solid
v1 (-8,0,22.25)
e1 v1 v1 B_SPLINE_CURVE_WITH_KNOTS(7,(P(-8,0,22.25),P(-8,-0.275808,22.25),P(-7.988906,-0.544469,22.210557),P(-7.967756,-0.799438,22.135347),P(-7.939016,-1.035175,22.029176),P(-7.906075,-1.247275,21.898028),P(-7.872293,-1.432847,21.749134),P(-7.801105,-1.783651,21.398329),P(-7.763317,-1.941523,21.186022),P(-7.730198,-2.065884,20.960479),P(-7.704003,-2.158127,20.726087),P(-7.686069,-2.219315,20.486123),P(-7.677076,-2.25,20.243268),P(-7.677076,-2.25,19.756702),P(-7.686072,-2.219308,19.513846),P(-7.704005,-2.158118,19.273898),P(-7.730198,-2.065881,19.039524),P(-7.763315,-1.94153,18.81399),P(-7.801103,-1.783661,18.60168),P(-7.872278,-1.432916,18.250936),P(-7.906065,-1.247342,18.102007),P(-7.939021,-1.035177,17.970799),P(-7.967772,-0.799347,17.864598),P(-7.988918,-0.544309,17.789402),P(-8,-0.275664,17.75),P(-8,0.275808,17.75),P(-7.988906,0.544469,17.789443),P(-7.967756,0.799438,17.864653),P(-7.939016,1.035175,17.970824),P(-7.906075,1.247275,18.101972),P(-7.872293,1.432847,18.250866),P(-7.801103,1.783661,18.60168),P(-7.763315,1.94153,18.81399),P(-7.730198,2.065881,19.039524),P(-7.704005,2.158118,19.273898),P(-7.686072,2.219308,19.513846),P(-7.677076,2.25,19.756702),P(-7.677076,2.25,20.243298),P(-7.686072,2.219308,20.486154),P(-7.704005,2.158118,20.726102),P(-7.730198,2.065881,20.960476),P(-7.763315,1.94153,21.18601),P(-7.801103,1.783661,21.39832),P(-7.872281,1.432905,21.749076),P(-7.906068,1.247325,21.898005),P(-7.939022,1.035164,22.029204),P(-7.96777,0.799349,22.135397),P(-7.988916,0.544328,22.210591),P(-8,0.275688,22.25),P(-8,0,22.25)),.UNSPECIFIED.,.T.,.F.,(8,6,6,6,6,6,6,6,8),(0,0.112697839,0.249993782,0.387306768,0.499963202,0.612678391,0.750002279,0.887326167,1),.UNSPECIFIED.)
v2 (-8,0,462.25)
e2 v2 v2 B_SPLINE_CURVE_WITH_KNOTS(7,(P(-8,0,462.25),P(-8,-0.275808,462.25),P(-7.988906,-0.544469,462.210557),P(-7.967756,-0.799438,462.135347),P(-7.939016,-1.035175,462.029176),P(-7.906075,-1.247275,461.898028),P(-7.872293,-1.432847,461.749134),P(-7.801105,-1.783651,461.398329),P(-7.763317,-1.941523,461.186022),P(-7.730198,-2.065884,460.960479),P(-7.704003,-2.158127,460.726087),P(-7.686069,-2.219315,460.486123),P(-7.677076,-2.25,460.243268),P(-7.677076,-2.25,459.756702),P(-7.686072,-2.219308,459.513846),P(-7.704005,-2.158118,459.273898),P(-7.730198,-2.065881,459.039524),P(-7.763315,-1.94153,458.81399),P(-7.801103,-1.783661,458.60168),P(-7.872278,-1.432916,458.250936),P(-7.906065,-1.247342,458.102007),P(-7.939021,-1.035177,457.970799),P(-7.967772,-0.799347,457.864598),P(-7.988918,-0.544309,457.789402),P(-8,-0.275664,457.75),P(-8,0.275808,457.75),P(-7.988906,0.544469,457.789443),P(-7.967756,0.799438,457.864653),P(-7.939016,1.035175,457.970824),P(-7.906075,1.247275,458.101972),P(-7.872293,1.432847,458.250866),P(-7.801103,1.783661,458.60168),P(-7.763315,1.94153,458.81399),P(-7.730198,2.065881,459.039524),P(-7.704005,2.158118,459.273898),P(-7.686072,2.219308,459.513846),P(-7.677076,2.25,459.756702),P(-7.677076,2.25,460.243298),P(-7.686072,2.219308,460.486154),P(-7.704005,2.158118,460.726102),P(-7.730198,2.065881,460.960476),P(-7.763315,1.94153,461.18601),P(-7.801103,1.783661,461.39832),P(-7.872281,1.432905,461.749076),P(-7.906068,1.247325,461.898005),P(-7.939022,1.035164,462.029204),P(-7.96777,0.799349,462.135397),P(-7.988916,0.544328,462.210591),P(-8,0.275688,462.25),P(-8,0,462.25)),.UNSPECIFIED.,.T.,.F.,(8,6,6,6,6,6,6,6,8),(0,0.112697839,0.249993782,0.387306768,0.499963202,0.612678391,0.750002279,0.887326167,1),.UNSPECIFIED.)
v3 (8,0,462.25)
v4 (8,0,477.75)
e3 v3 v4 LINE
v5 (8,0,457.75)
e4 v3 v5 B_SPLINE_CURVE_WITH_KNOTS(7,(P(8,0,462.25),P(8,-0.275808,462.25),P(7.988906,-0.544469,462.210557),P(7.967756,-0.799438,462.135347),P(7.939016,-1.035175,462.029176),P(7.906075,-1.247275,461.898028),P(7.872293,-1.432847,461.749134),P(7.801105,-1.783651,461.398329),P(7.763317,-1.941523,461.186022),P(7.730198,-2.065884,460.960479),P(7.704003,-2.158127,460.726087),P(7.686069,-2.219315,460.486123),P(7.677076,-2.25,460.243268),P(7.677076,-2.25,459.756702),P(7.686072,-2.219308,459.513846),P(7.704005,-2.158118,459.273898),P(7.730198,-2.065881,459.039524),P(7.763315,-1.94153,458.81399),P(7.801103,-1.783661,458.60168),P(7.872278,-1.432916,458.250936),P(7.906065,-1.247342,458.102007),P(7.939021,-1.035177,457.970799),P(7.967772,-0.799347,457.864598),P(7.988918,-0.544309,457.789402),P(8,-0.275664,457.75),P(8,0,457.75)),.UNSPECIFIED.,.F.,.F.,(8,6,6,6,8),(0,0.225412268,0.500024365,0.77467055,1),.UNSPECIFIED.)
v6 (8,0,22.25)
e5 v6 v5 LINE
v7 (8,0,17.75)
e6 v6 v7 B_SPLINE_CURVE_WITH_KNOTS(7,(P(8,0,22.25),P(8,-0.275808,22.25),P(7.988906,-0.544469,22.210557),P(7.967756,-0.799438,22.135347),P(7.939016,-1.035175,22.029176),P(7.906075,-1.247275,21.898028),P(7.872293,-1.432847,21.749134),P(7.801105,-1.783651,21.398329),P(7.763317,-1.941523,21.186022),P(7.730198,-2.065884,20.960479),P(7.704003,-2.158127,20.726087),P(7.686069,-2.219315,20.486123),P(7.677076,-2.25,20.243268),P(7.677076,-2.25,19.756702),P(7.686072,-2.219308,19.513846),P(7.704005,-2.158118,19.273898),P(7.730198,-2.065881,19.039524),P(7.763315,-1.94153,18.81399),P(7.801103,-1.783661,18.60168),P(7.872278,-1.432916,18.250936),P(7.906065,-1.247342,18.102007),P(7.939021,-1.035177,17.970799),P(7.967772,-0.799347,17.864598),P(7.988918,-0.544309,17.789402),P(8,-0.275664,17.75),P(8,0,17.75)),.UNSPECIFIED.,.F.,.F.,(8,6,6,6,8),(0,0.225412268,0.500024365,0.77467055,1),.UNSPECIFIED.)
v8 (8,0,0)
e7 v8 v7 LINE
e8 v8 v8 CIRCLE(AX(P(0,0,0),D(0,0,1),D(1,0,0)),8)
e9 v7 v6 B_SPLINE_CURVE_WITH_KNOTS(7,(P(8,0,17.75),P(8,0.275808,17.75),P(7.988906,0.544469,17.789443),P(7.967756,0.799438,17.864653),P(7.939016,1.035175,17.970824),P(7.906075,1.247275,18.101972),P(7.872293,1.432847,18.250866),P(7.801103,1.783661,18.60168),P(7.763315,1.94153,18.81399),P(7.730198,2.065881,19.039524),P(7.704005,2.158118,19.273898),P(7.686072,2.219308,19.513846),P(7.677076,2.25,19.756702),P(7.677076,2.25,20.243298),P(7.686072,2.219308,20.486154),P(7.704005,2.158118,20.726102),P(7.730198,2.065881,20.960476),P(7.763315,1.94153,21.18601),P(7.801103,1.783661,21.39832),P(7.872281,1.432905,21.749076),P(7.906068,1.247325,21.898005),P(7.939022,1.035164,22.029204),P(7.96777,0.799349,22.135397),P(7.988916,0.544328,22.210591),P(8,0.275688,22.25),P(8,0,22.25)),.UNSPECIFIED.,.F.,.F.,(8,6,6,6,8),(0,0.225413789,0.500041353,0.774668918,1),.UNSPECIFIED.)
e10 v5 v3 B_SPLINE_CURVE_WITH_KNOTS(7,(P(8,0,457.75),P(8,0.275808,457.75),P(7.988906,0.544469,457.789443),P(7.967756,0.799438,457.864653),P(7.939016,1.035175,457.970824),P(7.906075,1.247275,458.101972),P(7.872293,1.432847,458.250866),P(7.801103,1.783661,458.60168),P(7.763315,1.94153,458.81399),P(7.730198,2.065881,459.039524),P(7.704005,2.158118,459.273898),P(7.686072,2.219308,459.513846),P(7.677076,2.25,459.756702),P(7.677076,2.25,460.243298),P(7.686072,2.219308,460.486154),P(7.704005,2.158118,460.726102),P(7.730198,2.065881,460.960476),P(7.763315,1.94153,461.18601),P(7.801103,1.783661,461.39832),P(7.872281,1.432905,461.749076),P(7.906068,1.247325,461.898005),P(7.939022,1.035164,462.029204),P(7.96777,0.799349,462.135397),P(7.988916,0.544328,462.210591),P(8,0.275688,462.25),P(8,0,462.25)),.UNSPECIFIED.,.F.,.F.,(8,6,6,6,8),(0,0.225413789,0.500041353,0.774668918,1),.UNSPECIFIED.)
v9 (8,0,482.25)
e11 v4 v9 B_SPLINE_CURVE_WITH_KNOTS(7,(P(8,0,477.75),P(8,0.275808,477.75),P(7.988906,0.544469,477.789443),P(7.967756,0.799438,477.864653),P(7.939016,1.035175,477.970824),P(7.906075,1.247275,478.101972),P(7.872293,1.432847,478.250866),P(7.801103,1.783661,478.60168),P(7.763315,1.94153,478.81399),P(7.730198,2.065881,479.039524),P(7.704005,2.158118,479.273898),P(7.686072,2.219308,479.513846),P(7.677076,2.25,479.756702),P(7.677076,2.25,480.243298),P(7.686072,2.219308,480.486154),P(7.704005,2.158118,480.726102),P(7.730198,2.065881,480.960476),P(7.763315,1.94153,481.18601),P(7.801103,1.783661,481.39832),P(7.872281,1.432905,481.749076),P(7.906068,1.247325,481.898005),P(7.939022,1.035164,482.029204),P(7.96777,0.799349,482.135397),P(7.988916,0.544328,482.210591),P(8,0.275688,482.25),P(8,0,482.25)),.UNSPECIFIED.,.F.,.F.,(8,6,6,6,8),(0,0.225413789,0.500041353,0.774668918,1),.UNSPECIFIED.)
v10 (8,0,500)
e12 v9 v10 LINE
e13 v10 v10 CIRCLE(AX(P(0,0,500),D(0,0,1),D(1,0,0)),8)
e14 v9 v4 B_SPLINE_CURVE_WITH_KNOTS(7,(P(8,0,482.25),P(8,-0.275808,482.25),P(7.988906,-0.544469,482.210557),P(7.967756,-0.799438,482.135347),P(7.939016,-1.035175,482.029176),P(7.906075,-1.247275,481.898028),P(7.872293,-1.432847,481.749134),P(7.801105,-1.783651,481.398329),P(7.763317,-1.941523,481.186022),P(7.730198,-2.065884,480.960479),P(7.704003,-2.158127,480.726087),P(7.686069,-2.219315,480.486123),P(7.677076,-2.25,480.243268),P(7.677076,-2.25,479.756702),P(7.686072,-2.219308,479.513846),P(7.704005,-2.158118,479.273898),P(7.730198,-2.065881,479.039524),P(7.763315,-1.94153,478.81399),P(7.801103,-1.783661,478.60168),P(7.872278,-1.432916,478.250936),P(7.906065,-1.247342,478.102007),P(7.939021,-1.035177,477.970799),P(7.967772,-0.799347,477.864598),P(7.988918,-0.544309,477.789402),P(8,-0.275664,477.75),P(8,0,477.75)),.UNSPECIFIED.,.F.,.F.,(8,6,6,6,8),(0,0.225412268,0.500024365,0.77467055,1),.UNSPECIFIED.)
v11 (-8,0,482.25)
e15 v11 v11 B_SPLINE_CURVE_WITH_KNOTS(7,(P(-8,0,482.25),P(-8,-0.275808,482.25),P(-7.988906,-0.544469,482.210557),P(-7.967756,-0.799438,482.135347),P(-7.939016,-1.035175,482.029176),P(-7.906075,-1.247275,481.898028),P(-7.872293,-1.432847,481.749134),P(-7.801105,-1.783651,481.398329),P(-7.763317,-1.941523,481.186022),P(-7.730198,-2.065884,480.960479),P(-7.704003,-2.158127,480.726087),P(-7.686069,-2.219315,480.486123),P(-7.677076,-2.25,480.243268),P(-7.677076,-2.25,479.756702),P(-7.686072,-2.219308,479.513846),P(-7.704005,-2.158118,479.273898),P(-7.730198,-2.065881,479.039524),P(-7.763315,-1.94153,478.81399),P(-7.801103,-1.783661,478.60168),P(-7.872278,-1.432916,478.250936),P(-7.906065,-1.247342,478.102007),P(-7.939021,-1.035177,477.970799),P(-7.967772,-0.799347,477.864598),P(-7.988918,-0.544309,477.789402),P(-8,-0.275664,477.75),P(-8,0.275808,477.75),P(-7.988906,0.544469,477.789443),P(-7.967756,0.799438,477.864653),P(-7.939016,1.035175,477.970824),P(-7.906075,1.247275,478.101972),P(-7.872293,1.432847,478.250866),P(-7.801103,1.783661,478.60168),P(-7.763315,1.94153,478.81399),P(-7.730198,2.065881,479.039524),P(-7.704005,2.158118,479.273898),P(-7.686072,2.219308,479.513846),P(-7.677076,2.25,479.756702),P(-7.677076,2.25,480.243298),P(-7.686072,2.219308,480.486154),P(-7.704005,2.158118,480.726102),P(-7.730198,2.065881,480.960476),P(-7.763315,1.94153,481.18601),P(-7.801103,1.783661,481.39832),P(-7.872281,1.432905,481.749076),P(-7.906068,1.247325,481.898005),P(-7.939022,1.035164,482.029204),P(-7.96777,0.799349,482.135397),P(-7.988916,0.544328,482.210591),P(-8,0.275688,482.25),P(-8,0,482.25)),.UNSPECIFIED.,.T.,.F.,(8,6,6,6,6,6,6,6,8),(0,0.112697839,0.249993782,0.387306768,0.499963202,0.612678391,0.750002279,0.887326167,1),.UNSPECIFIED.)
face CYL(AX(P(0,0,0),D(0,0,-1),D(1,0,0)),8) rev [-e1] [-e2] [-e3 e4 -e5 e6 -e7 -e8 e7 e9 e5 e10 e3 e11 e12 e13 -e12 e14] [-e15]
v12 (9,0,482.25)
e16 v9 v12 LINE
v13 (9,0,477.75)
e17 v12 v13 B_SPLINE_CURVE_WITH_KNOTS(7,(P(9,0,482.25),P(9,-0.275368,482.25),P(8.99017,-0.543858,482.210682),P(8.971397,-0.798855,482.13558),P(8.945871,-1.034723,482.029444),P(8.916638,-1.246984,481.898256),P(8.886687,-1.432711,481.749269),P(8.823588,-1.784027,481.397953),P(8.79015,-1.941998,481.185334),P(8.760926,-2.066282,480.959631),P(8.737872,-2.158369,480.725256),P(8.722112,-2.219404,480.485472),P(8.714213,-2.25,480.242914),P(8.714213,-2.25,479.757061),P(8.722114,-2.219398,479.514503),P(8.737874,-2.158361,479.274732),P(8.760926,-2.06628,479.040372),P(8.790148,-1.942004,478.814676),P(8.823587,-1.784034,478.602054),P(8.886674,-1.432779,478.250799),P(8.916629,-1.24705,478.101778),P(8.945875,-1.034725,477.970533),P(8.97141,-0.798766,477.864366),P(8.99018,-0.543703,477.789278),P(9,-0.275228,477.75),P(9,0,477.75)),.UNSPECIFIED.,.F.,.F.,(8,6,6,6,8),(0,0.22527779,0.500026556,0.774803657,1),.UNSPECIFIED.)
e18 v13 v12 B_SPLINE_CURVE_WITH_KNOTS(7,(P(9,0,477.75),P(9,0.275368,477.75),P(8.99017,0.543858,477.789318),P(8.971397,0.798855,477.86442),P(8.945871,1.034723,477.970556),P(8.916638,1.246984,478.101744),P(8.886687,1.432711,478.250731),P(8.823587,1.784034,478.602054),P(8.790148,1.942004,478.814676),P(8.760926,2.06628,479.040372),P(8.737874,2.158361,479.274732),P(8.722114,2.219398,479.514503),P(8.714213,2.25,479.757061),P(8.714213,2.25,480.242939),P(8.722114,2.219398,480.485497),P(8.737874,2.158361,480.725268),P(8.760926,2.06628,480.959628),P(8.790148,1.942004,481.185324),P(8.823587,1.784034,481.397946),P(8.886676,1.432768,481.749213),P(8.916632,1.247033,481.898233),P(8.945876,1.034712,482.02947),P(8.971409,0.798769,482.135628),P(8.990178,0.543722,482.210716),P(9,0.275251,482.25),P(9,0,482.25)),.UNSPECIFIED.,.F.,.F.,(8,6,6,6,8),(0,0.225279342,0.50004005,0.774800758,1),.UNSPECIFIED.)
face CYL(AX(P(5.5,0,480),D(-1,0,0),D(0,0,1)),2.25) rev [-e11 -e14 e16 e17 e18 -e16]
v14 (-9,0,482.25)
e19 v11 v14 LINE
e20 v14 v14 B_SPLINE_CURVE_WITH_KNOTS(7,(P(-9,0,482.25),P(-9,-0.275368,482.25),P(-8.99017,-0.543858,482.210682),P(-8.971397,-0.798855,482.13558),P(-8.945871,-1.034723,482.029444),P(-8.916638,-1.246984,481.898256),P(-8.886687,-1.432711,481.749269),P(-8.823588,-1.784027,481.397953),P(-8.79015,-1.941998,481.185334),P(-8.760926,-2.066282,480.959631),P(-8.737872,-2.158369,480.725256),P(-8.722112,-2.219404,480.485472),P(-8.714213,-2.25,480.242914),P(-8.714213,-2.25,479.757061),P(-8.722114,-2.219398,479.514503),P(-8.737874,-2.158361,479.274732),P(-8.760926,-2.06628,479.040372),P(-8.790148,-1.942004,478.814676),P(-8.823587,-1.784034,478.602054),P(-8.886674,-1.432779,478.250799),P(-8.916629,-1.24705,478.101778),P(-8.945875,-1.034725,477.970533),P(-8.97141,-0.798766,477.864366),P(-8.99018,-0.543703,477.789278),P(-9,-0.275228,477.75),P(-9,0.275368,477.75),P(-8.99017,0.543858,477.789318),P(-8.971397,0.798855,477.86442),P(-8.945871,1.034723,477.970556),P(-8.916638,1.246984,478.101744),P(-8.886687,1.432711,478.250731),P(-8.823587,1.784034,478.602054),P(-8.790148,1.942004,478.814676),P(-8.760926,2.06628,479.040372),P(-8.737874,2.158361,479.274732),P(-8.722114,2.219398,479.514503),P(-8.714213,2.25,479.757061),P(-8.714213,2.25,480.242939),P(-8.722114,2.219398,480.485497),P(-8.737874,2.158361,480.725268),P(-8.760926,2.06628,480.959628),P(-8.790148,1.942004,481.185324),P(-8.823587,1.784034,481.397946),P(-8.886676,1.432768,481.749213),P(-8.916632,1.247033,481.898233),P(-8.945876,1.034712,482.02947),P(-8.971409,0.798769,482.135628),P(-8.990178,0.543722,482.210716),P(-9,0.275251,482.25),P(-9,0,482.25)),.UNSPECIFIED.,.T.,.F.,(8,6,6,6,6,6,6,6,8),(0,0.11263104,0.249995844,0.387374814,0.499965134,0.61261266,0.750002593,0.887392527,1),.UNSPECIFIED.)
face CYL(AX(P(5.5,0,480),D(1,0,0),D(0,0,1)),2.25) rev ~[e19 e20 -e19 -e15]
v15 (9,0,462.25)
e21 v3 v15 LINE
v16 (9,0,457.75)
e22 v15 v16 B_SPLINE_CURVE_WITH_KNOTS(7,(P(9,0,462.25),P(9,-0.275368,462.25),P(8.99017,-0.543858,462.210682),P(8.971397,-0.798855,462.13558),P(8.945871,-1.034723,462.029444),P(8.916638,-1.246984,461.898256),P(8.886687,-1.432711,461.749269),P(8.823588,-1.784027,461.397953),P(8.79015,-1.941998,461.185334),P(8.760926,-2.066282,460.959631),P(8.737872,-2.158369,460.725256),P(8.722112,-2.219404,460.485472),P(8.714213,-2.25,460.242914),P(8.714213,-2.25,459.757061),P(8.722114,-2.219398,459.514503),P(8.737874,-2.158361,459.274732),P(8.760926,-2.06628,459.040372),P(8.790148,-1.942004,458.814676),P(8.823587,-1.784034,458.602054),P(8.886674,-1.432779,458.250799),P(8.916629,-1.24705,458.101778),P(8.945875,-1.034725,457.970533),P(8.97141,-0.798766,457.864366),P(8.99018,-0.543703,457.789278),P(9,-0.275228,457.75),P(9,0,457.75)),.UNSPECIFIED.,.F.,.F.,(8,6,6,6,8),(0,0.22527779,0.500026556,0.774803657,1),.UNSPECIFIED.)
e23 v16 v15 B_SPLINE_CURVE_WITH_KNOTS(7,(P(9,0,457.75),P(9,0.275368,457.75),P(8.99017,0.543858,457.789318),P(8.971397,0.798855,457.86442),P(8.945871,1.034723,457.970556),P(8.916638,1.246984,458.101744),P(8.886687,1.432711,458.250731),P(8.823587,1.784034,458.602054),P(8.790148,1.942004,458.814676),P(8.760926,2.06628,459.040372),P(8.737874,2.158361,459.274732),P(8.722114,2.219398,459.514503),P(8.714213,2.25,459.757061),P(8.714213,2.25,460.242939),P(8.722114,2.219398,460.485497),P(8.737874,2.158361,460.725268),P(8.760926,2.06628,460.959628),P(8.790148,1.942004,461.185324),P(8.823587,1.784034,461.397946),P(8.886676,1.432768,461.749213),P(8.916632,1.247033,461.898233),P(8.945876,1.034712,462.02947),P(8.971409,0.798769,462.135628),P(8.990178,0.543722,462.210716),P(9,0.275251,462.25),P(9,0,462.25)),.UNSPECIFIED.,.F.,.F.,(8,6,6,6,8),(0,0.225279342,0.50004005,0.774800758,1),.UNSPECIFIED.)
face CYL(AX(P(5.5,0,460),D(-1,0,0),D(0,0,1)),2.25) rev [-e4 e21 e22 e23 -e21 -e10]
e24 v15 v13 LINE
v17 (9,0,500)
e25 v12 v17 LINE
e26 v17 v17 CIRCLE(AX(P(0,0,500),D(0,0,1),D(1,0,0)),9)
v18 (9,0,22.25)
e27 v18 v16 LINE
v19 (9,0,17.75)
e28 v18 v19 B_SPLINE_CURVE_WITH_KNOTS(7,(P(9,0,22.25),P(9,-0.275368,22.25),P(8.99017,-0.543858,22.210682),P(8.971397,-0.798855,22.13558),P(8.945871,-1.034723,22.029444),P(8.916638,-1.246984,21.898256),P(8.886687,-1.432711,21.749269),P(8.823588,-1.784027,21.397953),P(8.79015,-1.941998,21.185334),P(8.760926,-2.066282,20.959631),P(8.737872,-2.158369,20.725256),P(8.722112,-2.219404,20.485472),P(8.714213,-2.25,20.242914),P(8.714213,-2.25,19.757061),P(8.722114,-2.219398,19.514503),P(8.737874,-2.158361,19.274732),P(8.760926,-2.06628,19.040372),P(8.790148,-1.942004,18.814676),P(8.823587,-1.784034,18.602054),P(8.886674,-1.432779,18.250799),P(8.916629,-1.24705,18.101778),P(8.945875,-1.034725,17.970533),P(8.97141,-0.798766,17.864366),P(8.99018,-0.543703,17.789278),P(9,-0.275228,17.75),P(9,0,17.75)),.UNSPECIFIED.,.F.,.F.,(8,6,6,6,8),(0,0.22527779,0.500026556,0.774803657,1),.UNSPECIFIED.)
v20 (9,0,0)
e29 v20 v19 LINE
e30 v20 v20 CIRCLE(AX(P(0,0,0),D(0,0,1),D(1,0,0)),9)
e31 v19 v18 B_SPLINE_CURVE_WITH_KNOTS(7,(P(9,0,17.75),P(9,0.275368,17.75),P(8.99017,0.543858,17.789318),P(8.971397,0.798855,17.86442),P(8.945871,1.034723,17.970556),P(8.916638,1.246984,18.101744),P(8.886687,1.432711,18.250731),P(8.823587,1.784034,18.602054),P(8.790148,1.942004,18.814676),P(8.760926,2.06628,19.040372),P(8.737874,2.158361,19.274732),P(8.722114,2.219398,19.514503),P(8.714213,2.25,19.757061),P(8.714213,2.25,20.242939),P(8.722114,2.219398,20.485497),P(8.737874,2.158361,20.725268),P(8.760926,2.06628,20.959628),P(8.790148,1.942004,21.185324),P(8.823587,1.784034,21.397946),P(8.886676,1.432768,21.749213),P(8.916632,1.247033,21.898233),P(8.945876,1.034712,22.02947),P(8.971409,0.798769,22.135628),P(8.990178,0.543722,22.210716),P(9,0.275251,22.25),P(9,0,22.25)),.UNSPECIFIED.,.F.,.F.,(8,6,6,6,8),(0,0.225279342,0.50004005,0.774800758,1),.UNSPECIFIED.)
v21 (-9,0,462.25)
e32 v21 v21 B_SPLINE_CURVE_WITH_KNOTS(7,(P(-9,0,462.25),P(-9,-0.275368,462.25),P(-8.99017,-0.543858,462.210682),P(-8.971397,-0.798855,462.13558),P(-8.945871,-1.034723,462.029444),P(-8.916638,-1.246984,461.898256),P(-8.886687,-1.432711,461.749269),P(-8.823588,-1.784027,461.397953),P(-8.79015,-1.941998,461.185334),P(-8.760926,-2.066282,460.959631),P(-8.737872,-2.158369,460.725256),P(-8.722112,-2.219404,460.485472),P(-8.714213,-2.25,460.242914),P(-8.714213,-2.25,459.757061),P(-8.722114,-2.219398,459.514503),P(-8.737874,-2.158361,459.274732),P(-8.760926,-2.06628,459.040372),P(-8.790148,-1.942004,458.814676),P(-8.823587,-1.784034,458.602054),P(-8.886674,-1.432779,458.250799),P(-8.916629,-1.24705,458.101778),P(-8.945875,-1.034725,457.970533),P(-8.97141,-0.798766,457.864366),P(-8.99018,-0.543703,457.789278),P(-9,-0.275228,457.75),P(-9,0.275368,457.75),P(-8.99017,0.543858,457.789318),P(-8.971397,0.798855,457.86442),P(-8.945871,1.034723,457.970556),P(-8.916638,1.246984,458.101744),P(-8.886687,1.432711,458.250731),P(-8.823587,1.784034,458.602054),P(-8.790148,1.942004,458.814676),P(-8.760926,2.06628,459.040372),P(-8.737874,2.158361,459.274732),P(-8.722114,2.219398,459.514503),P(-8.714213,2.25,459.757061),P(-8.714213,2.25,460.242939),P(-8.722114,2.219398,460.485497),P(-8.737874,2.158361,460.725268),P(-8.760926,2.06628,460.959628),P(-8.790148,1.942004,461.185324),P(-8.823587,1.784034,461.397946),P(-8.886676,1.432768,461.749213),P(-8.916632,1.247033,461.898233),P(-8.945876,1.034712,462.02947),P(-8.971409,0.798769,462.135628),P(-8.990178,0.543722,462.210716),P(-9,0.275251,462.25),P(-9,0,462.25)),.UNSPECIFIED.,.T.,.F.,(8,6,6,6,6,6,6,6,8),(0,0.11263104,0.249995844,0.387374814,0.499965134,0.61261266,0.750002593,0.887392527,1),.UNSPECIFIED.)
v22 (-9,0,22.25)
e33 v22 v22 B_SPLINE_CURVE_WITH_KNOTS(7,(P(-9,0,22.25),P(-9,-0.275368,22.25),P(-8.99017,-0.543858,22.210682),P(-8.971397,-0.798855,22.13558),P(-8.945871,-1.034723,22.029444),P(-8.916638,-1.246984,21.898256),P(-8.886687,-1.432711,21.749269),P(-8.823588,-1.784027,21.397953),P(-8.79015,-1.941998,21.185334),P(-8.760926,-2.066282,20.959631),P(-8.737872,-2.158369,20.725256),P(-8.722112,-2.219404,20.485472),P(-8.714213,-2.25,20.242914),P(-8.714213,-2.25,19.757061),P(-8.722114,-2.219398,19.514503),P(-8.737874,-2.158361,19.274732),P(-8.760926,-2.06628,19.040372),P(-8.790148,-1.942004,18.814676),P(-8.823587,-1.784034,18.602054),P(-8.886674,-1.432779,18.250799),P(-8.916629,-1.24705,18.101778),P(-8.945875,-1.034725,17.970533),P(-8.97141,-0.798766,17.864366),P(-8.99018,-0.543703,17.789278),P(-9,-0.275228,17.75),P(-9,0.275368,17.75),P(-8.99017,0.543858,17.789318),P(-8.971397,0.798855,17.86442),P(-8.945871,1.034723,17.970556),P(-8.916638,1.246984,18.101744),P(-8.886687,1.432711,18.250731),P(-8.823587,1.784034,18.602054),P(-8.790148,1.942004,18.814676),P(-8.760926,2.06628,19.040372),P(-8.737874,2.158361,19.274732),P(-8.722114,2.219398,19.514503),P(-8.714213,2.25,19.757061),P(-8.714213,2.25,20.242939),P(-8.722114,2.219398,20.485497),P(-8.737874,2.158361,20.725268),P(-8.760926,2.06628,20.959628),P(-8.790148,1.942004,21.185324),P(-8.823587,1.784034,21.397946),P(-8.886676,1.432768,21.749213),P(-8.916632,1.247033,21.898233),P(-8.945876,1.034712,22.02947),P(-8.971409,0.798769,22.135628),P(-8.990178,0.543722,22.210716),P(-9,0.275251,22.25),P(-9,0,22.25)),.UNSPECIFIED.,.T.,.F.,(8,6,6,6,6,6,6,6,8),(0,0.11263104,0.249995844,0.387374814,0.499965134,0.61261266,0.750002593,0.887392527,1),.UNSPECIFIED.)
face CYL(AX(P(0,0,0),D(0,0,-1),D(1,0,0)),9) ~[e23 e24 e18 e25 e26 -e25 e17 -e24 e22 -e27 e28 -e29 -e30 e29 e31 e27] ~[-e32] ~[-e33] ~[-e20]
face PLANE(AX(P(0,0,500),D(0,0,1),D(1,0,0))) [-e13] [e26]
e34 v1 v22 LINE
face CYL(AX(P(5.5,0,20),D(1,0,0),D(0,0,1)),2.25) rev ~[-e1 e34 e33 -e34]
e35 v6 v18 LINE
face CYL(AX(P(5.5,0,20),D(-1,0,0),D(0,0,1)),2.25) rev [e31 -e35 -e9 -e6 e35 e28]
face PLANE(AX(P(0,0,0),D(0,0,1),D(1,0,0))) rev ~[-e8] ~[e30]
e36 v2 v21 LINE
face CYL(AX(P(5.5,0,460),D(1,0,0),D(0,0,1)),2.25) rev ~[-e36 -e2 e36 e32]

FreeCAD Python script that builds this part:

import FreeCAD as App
import Part
import Sketcher

doc = App.newDocument("Part")
body = doc.addObject("PartDesign::Body", "Body")

sketch1 = body.newObject("Sketcher::SketchObject", "Sketch")
sketch1.AttachmentSupport = (doc.getObject("XY_Plane"), [""])
sketch1.MapMode = "FlatFace"
sketch1.addGeometry([
    Part.Circle(App.Vector(0, 0, 0), App.Vector(0, 0, 1), 9),
    Part.Circle(App.Vector(0, 0, 0), App.Vector(0, 0, 1), 8),
], False)
sketch1.addConstraint([
    Sketcher.Constraint("Coincident", 0, 3, -1, 1),
    Sketcher.Constraint("Coincident", 1, 3, -1, 1),
    Sketcher.Constraint("Diameter", 0, 18.0),
    Sketcher.Constraint("Diameter", 1, 16.0),
])
pad1 = body.newObject("PartDesign::Pad", "Pad")
pad1.Profile = sketch1
pad1.Length = 500

sketch2 = body.newObject("Sketcher::SketchObject", "Sketch001")
sketch2.AttachmentSupport = (doc.getObject("YZ_Plane"), [""])
sketch2.MapMode = "FlatFace"
sketch2.AttachmentOffset = App.Placement(App.Vector(0, 0, 5.5), App.Rotation())
sketch2.addGeometry([
    Part.Circle(App.Vector(0, 20, 0), App.Vector(0, 0, 1), 2.2),
    Part.Circle(App.Vector(0, 480, 0), App.Vector(0, 0, 1), 2.2),
    Part.Circle(App.Vector(0, 460, 0), App.Vector(0, 0, 1), 2.2),
], False)
sketch2.addConstraint([
    Sketcher.Constraint("Equal", 0, 1),
    Sketcher.Constraint("Equal", 1, 2),
    Sketcher.Constraint("PointOnObject", 0, 3, -2),
    Sketcher.Constraint("PointOnObject", 1, 3, -2),
    Sketcher.Constraint("PointOnObject", 2, 3, -2),
    Sketcher.Constraint("Diameter", 0, 4.5),
    Sketcher.Constraint("DistanceY", -1, 1, 0, 3, 20.0),
    Sketcher.Constraint("DistanceY", 2, 3, 1, 3, 20.0),
    Sketcher.Constraint("DistanceY", -1, 1, 1, 3, 480.0),
])
pocket1 = body.newObject("PartDesign::Pocket", "Pocket")
pocket1.Profile = sketch2
pocket1.Type = "ThroughAll"
pocket1.Midplane = True

doc.recompute()
